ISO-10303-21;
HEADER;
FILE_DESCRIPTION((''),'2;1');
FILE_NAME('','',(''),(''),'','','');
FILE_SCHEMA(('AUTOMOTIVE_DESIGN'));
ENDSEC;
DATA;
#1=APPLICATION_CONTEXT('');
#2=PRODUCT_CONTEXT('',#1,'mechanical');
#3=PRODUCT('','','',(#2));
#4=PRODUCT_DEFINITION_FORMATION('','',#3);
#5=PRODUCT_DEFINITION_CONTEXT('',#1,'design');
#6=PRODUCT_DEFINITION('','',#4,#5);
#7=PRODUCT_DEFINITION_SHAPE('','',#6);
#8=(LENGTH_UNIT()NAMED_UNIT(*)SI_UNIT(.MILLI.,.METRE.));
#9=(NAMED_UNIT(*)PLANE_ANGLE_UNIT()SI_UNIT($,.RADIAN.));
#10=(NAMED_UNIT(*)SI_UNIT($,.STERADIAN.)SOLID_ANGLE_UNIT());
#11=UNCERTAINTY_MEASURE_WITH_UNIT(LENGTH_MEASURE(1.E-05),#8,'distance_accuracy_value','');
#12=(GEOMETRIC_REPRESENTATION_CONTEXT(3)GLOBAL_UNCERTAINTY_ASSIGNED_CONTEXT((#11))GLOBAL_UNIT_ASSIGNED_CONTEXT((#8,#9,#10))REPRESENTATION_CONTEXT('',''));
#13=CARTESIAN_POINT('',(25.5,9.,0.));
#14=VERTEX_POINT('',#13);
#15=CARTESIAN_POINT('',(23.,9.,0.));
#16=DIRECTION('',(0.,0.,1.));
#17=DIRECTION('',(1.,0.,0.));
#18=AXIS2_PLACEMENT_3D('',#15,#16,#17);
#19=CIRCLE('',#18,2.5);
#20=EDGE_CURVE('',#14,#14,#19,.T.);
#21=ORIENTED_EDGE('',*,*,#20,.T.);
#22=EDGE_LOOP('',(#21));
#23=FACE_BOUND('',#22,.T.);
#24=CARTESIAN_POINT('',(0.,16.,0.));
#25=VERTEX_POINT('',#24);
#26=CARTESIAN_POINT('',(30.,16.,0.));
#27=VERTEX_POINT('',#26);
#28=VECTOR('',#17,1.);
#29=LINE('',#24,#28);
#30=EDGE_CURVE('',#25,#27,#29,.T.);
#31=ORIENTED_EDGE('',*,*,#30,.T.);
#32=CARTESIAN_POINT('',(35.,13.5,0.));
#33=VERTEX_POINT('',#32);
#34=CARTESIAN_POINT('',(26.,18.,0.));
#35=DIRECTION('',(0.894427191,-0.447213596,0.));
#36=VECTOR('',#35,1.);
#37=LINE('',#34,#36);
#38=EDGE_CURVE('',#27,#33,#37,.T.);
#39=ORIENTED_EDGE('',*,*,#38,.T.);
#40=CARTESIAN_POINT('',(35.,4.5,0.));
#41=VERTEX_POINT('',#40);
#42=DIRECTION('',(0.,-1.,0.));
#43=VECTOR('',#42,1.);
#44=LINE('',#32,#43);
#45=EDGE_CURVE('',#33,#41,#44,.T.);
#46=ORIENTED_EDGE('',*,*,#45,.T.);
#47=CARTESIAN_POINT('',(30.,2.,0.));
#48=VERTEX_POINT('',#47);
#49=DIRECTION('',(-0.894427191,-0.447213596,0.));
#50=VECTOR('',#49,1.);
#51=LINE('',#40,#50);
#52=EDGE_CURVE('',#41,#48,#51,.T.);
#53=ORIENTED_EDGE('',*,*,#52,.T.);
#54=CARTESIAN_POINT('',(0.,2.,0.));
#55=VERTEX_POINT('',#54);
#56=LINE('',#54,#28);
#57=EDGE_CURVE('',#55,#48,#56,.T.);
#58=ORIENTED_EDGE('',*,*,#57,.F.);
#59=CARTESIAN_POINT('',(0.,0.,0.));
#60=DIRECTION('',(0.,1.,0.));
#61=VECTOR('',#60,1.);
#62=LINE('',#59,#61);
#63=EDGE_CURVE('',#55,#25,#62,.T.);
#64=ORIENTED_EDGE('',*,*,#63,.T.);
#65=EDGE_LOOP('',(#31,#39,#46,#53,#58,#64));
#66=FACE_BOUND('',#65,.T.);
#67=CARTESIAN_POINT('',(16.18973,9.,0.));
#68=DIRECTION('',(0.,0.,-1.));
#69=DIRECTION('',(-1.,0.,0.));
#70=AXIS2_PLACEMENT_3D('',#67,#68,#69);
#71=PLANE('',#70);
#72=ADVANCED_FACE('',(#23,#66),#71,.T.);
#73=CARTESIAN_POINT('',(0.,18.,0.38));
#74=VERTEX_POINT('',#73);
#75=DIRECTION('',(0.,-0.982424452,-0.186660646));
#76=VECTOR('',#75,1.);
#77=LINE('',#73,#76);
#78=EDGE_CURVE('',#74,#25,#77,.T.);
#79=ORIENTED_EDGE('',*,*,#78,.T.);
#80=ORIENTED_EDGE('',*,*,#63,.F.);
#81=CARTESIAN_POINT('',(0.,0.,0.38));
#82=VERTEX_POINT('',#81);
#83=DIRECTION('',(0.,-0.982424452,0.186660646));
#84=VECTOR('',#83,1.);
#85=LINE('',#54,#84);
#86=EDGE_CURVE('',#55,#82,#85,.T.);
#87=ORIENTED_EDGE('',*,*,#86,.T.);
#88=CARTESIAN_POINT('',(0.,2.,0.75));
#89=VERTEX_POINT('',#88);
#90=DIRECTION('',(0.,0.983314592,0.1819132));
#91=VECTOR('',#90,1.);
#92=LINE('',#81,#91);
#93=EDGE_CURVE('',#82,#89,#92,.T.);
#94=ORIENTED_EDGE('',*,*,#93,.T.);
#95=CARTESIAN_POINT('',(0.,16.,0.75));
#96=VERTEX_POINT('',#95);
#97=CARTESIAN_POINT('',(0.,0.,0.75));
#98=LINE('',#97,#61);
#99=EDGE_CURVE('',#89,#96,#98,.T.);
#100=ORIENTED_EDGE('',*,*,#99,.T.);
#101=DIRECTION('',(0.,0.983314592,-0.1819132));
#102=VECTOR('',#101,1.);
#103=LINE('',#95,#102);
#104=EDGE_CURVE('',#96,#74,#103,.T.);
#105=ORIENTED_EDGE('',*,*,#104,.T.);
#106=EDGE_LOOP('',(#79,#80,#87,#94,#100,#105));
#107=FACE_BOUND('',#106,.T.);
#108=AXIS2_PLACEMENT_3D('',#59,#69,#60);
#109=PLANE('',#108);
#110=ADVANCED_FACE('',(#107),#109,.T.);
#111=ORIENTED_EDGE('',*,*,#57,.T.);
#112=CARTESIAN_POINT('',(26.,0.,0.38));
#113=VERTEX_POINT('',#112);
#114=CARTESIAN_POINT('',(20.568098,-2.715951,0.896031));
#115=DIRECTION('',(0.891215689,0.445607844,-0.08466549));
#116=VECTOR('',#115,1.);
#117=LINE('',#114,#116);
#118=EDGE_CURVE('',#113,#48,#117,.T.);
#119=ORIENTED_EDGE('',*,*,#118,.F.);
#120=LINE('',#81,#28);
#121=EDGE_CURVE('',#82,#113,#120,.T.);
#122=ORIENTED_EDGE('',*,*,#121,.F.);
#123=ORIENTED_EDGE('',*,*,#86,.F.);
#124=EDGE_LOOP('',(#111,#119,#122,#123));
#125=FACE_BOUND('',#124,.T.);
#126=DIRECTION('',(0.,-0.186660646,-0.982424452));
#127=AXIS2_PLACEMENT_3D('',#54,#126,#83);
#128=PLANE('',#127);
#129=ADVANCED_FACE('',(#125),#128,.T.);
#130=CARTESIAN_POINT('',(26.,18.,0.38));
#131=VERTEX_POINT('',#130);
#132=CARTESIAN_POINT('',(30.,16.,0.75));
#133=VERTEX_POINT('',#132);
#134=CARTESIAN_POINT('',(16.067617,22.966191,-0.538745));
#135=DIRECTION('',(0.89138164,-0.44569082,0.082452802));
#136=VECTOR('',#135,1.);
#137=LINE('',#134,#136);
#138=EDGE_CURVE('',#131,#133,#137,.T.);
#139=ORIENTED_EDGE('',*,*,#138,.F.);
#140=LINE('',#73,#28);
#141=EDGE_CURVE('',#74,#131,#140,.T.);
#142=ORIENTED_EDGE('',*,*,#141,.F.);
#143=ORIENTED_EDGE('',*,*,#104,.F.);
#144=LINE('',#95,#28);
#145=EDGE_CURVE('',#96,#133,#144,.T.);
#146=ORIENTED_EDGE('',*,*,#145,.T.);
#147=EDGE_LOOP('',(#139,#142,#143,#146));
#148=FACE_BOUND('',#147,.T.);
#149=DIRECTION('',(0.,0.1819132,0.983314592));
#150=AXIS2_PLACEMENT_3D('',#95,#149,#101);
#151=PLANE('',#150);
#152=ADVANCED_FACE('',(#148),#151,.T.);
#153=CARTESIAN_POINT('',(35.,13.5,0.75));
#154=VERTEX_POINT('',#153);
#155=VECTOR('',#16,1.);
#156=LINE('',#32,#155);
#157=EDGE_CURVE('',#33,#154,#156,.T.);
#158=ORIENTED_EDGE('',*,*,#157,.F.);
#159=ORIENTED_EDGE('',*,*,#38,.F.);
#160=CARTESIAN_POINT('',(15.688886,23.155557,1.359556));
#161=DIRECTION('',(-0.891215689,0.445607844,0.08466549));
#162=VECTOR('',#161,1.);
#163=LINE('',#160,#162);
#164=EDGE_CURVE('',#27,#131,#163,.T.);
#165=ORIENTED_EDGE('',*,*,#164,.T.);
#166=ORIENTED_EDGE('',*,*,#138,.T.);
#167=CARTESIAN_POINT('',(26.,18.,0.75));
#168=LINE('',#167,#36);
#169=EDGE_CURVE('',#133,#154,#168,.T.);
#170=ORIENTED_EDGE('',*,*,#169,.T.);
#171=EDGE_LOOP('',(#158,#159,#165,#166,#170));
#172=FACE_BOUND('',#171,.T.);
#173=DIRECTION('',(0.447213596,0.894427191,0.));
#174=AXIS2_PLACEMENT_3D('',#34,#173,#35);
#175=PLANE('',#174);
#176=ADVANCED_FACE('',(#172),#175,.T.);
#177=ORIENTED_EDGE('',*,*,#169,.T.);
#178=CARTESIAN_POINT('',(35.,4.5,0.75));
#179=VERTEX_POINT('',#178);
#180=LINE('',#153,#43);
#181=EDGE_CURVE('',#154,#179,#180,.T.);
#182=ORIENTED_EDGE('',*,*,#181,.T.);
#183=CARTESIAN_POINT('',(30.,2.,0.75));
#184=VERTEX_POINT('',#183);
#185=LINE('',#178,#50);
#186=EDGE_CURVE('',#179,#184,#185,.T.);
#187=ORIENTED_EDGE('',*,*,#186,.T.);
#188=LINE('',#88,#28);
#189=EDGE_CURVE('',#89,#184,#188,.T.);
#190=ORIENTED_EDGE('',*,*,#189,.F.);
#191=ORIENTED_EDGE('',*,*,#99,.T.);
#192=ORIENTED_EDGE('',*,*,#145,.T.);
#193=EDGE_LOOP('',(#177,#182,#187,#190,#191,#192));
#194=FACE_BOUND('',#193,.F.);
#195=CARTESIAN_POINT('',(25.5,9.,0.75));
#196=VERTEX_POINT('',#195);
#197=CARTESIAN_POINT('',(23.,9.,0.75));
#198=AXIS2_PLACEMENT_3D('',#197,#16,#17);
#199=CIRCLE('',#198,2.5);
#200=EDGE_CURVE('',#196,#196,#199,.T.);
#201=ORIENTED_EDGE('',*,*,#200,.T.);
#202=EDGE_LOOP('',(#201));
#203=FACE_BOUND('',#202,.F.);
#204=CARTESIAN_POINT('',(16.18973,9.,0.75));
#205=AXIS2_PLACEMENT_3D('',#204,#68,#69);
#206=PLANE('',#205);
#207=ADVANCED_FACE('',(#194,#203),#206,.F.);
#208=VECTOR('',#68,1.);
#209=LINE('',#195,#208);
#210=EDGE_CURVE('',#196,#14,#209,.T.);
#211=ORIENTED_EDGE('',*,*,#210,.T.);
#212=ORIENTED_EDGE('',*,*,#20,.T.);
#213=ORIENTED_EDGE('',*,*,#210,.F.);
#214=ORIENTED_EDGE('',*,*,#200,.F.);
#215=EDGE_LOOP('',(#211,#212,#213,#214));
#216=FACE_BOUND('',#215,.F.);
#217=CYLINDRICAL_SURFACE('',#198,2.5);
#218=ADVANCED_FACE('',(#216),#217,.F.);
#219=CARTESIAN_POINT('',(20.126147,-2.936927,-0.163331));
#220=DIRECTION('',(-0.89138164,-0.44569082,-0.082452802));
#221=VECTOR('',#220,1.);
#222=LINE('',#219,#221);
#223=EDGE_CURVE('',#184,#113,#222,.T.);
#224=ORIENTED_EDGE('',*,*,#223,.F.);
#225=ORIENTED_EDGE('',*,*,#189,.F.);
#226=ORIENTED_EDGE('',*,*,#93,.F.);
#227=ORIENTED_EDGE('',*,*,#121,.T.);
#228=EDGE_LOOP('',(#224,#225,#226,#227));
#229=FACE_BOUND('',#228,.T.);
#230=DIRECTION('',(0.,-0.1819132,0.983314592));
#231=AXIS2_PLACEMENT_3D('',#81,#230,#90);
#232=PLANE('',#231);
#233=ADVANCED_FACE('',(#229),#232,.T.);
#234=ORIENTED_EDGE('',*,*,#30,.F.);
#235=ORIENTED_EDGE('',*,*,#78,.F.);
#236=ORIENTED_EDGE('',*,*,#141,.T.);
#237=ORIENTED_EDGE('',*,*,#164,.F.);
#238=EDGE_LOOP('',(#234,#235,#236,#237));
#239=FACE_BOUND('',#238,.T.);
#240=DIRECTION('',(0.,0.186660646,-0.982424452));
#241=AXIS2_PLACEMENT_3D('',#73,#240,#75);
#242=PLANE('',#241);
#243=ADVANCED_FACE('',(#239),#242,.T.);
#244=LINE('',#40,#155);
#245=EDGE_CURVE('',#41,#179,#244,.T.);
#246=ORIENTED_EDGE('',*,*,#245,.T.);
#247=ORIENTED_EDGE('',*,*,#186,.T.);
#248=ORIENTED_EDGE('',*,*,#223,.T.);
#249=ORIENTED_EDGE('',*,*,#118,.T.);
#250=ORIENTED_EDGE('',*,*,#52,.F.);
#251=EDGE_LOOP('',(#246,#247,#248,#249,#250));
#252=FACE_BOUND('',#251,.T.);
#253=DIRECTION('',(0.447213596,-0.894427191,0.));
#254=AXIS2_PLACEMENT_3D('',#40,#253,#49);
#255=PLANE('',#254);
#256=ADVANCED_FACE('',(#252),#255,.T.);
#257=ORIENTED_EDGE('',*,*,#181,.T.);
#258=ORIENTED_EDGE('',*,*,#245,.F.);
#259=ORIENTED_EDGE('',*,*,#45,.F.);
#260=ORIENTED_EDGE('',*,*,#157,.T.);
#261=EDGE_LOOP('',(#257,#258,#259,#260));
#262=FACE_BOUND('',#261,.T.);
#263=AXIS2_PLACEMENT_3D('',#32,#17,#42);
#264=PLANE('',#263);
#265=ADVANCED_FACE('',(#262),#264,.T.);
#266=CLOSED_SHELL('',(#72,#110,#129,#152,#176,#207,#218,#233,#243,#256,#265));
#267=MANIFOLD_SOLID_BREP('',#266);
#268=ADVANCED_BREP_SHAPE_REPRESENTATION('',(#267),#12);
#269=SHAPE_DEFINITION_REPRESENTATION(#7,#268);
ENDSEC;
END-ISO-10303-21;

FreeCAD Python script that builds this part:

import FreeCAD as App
import Part
import Sketcher

V = App.Vector


def add_polygon(sketch, points):
    """Adds a closed chain of lines whose ends are joined by coincident constraints."""
    first, n = sketch.GeometryCount, len(points)
    for a, b in zip(points, points[1:] + points[:1]):
        sketch.addGeometry(Part.LineSegment(App.Vector(*a, 0), App.Vector(*b, 0)), False)
    for i in range(n):
        sketch.addConstraint(Sketcher.Constraint("Coincident", first + i, 2, first + (i + 1) % n, 1))

doc = App.newDocument("Part")
body = doc.addObject("PartDesign::Body", "Body")

# Sketch on XY plane
sketch1 = body.newObject("Sketcher::SketchObject", "Sketch")
sketch1.AttachmentSupport = (doc.getObject("XY_Plane"), [""])
sketch1.MapMode = "FlatFace"
add_polygon(sketch1, [(0, 18), (0, 0), (26, 0), (35, 4), (35, 14), (26, 18)])  # lines 0-5
sketch1.addConstraint([
    Sketcher.Constraint("Vertical", 0),
    Sketcher.Constraint("Horizontal", 1),
    Sketcher.Constraint("Vertical", 3),
    Sketcher.Constraint("Horizontal", 5),
    Sketcher.Constraint("Coincident", 0, 2, -1, 1),
    Sketcher.Constraint("Vertical", 1, 2, 4, 2),
    Sketcher.Constraint("Equal", 2, 4),
    Sketcher.Constraint("DistanceX", 1, 1, 1, 2, 26.0),
    Sketcher.Constraint("DistanceY", 0, 2, 0, 1, 18.0),
    Sketcher.Constraint("DistanceY", 3, 1, 3, 2, 9.0),
    Sketcher.Constraint("DistanceX", -1, 1, 2, 2, 35.0),
])
pad1 = body.newObject("PartDesign::Pad", "Pad")
pad1.Profile = sketch1
pad1.Length = 0.75

# Sketch on XY plane
sketch2 = body.newObject("Sketcher::SketchObject", "Sketch001")
sketch2.AttachmentSupport = (doc.getObject("XY_Plane"), [""])
sketch2.MapMode = "FlatFace"
sketch2.AttachmentOffset = App.Placement(V(0, 0, 0.75), App.Rotation())
sketch2.addGeometry(Part.Circle(V(23, 9, 0), V(0, 0, 1), 2.5), False)
sketch2.addConstraint([
    Sketcher.Constraint("Diameter", 0, 5.0),
    Sketcher.Constraint("DistanceX", -1, 1, 0, 3, 23.0),
    Sketcher.Constraint("DistanceY", -1, 1, 0, 3, 9.0),
])
pocket1 = body.newObject("PartDesign::Pocket", "Pocket")
pocket1.Profile = sketch2
pocket1.Type = "ThroughAll"

# Sketch on YZ plane
sketch3 = body.newObject("Sketcher::SketchObject", "Sketch002")
sketch3.AttachmentSupport = (doc.getObject("YZ_Plane"), [""])
sketch3.MapMode = "FlatFace"
add_polygon(sketch3, [(0, 0.4), (2, 0), (0, 0), (0, 0.8), (2, 0.8)])  # lines 0-4
add_polygon(sketch3, [(18, 0.4), (16, 0.8), (18, 0.8), (18, 0), (16, 0)])  # lines 5-9
sketch3.addConstraint([
    Sketcher.Constraint("Horizontal", 1),
    Sketcher.Constraint("Vertical", 2),
    Sketcher.Constraint("Horizontal", 3),
    Sketcher.Constraint("Horizontal", 6),
    Sketcher.Constraint("Vertical", 7),
    Sketcher.Constraint("Horizontal", 8),
    Sketcher.Constraint("Coincident", 1, 2, -1, 1),
    Sketcher.Constraint("PointOnObject", 4, 2, -2),
    Sketcher.Constraint("PointOnObject", 7, 2, -1),
    Sketcher.Constraint("Horizontal", 3, 2, 5, 2),
    Sketcher.Constraint("Horizontal", 4, 2, 9, 2),
    Sketcher.Constraint("Vertical", 0, 2, 3, 2),
    Sketcher.Constraint("Vertical", 5, 2, 8, 2),
    Sketcher.Constraint("Vertical", 7, 2, 9, 2),
    Sketcher.Constraint("Equal", 3, 6),
    Sketcher.Constraint("DistanceX", 1, 2, 1, 1, 2.0),
    Sketcher.Constraint("DistanceX", -1, 1, 5, 2, 16.0),
    Sketcher.Constraint("DistanceY", 2, 1, 2, 2, 0.75),
    Sketcher.Constraint("DistanceY", -1, 1, 4, 2, 0.38),
])
pocket2 = body.newObject("PartDesign::Pocket", "Pocket001")
pocket2.Profile = sketch3
pocket2.Type = "ThroughAll"
pocket2.Reversed = True

doc.recompute()
